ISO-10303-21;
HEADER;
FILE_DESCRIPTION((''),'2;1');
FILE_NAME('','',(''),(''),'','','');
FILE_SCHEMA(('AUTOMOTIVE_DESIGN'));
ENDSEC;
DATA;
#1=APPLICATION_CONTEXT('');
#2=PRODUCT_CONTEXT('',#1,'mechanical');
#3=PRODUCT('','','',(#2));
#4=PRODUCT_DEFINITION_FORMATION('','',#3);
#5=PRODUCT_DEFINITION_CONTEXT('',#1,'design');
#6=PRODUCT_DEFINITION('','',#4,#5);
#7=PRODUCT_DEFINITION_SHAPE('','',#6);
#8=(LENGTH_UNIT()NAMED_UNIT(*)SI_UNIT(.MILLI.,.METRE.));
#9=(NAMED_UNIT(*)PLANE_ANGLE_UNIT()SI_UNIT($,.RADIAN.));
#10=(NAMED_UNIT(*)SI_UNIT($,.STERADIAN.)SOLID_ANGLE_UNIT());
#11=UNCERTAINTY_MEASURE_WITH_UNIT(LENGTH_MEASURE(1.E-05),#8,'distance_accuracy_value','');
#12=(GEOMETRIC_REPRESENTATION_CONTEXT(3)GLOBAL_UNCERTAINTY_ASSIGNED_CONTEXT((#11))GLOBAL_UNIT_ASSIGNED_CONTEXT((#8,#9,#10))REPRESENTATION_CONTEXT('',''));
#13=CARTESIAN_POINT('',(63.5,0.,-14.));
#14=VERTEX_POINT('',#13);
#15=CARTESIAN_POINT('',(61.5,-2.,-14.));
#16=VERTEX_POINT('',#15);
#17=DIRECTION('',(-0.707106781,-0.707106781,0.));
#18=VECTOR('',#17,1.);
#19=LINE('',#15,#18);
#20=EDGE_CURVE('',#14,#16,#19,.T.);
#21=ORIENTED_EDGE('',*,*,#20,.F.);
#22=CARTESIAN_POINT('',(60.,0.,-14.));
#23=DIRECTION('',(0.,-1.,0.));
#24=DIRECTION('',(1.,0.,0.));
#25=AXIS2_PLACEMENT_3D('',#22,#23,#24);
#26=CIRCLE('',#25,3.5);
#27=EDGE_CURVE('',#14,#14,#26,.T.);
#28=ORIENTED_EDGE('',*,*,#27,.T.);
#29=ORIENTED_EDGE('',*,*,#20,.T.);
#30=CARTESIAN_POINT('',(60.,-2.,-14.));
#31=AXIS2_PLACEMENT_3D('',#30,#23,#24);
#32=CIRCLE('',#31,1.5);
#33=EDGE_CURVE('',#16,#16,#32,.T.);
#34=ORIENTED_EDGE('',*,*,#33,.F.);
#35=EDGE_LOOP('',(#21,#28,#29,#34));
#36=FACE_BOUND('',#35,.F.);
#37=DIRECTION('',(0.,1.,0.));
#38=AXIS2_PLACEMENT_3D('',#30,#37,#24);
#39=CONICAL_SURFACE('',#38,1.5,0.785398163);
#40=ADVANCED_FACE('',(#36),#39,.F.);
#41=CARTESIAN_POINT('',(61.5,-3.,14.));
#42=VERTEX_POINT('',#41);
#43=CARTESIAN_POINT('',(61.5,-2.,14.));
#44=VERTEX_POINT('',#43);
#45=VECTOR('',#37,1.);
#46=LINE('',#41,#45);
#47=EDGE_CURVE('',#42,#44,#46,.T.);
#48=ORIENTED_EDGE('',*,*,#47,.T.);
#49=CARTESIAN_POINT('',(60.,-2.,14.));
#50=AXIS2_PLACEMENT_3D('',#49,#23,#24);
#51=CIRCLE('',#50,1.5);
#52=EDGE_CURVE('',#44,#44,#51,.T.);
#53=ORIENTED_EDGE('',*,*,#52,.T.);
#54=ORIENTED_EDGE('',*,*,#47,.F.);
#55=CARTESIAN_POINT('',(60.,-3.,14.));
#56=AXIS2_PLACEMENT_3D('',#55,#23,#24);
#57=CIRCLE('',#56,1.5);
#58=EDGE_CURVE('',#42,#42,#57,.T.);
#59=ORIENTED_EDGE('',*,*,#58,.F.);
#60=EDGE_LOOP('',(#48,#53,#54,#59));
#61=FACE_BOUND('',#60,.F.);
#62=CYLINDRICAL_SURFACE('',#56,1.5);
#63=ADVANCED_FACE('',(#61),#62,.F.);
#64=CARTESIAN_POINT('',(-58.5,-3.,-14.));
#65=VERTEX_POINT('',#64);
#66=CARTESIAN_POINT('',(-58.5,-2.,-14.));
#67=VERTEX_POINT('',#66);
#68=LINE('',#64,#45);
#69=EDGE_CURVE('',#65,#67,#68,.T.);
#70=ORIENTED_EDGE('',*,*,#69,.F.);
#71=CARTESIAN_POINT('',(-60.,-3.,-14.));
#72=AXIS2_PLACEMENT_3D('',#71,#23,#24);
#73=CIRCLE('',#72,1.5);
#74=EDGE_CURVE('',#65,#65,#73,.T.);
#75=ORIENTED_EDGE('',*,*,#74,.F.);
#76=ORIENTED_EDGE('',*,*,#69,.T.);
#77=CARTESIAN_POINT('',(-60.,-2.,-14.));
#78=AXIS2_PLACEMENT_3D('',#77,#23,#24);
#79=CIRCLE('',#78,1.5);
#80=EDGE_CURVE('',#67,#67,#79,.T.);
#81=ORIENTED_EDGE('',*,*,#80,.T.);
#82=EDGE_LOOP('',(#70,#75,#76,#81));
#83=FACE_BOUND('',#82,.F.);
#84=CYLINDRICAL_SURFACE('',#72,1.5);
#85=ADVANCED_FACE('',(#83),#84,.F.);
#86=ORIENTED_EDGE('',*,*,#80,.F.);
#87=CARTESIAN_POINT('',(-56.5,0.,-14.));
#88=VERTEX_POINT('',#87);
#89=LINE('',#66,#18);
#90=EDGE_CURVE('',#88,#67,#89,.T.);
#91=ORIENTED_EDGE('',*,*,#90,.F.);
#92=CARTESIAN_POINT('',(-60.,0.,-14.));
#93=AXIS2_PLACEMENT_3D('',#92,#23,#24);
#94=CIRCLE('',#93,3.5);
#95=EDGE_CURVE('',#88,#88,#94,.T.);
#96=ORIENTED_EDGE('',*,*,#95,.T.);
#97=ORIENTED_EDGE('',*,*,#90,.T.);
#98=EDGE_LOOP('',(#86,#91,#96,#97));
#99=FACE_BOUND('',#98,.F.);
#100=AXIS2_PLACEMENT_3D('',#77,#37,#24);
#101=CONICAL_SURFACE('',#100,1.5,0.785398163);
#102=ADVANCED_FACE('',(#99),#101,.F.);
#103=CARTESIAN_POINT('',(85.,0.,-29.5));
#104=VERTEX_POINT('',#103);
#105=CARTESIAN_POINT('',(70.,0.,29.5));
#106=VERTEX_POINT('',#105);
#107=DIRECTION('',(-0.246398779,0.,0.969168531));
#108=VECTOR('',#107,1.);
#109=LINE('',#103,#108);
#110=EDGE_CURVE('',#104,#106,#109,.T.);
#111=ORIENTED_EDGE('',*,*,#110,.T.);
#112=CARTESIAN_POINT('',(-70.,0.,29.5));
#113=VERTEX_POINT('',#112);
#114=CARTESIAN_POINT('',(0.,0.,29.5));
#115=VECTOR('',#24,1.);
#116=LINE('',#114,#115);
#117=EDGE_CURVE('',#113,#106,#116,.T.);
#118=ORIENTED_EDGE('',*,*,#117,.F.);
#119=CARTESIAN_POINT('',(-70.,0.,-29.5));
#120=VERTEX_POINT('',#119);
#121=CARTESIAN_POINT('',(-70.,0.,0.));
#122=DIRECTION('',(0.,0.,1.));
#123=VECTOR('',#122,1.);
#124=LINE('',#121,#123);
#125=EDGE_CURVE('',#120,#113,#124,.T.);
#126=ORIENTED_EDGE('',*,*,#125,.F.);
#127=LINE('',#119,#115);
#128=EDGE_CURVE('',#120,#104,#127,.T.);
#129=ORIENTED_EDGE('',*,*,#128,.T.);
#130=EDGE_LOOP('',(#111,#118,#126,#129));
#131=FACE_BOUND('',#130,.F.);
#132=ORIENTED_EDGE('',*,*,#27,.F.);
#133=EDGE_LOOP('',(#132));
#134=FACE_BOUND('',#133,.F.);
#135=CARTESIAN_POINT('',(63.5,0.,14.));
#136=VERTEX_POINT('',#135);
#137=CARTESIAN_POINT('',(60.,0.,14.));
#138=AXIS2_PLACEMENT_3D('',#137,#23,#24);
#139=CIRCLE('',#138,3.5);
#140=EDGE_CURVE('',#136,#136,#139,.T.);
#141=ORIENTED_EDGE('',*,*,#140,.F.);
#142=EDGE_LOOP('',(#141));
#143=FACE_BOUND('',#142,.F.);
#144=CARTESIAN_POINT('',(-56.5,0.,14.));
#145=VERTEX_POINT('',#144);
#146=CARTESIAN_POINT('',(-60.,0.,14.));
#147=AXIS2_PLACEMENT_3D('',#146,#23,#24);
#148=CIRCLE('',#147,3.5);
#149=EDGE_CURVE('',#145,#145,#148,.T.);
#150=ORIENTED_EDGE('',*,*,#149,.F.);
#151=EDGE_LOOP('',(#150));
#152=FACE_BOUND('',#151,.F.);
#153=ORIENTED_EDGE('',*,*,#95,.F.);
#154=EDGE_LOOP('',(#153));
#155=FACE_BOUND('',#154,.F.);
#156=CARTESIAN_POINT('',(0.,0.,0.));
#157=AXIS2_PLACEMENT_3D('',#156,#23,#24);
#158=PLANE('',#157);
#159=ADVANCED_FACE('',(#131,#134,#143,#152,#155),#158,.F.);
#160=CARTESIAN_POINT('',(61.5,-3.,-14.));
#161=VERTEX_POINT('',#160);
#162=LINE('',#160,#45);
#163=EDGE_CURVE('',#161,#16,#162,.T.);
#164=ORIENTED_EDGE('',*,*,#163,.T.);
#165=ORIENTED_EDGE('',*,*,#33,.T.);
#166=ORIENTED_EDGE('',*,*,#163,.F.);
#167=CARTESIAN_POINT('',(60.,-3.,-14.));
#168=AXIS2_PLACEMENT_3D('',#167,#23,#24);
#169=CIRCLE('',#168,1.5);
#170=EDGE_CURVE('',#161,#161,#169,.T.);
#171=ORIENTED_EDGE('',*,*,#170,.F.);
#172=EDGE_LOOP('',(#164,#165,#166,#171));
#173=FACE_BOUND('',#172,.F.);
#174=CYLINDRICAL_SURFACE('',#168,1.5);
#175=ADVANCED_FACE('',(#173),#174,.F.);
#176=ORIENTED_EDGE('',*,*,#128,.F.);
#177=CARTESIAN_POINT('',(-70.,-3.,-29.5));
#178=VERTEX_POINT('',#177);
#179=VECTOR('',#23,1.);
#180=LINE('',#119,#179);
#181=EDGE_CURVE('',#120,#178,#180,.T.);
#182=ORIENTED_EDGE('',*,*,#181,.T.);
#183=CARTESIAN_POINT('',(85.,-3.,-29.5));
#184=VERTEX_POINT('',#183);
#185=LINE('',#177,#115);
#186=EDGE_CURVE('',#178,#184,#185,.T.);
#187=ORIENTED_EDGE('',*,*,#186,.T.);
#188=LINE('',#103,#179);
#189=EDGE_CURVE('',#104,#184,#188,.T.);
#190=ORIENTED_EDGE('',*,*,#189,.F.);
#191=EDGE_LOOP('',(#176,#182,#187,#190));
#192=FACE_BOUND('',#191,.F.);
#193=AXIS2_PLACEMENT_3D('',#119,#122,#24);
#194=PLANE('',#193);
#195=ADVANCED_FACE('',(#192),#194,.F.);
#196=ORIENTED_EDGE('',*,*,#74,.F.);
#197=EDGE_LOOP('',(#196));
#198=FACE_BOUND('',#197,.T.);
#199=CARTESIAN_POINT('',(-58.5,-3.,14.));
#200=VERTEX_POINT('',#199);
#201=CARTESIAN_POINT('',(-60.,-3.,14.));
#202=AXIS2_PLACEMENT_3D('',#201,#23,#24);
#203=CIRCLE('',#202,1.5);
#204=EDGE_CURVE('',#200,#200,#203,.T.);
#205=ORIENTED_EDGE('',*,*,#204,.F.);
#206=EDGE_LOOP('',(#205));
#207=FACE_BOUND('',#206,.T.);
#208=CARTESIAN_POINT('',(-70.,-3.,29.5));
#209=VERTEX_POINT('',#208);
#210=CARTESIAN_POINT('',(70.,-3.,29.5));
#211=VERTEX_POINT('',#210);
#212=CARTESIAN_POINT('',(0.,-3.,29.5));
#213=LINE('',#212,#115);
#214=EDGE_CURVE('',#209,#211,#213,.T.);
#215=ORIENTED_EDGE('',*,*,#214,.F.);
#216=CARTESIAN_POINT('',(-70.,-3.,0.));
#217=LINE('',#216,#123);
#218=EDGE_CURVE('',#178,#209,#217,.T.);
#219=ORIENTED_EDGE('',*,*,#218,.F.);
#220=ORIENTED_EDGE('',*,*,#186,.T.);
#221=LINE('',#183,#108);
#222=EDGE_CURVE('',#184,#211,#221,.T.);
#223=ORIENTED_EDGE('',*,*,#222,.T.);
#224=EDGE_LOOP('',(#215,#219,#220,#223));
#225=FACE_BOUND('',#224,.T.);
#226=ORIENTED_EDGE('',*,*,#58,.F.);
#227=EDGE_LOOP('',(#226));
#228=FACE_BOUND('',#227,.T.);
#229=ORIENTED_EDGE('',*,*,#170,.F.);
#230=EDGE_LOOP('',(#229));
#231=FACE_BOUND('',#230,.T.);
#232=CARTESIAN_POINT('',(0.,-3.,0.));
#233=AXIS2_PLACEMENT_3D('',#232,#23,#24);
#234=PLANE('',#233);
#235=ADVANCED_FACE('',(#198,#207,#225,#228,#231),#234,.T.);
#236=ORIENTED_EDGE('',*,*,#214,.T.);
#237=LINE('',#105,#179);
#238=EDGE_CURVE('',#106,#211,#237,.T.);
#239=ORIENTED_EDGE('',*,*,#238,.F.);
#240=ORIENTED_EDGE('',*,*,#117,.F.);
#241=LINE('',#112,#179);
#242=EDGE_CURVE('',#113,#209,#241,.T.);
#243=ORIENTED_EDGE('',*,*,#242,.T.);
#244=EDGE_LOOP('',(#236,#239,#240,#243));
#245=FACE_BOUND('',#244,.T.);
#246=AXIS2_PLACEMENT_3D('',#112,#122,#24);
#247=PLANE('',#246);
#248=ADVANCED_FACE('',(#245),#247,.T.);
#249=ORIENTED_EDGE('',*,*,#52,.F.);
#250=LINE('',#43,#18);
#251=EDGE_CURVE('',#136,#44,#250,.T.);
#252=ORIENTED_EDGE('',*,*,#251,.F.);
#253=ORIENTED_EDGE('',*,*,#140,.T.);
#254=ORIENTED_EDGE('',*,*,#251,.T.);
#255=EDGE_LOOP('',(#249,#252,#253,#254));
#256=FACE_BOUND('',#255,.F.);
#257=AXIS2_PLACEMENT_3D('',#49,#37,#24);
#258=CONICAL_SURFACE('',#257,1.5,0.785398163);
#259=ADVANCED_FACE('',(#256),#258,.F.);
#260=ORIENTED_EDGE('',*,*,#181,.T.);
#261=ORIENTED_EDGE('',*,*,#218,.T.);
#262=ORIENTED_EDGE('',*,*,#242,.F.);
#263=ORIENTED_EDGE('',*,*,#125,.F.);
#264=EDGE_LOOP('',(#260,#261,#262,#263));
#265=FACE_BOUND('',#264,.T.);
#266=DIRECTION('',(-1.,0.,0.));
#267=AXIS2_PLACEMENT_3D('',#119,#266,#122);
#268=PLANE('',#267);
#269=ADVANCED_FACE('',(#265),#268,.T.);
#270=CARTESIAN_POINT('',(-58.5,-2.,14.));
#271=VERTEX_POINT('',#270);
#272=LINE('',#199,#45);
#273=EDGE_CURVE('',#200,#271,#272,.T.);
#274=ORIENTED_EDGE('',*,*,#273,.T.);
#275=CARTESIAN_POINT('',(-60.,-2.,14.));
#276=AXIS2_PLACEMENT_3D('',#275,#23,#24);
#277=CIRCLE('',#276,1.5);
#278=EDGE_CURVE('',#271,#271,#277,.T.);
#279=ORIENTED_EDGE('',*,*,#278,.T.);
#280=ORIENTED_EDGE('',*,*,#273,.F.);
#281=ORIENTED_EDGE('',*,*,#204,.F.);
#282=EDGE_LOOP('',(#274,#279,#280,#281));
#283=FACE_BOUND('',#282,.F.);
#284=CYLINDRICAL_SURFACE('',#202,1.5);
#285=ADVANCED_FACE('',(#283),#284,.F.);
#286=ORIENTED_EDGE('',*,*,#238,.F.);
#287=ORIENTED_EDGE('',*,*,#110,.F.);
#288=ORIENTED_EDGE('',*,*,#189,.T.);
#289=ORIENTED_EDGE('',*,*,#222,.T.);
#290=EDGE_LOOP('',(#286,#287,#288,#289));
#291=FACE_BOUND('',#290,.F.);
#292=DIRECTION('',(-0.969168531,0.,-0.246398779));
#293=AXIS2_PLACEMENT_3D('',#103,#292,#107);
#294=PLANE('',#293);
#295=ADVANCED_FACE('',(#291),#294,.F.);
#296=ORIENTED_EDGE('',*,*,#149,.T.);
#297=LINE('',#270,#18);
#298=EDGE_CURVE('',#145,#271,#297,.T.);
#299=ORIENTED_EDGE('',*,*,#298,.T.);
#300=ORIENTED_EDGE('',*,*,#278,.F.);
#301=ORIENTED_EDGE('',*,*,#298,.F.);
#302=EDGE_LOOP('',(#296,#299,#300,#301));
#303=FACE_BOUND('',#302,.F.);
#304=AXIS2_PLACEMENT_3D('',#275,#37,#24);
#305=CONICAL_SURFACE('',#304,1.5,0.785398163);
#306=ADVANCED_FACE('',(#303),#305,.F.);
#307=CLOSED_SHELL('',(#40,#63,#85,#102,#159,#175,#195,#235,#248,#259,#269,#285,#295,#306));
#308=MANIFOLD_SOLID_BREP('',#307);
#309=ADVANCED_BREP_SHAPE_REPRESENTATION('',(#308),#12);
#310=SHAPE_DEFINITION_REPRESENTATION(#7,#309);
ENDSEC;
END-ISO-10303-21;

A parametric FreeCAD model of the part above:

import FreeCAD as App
import Part
import Sketcher
from FreeCAD import Vector
Q = App.Units.Quantity


def edges_at(feature, points):
    """Names of the edges that pass closest to the given points."""
    edges = feature.Shape.Edges
    near = lambda p: min(range(len(edges)), key=lambda i: edges[i].distToShape(Part.Vertex(*p))[0])
    return sorted({f"Edge{near(p) + 1}" for p in points})


def add_polygon(sketch, points):
    """Adds a closed chain of lines whose ends are joined by coincident constraints."""
    first, n = sketch.GeometryCount, len(points)
    for a, b in zip(points, points[1:] + points[:1]):
        sketch.addGeometry(Part.LineSegment(App.Vector(*a, 0), App.Vector(*b, 0)), False)
    for i in range(n):
        sketch.addConstraint(Sketcher.Constraint("Coincident", first + i, 2, first + (i + 1) % n, 1))

doc = App.newDocument("Part")
body = doc.addObject("PartDesign::Body", "Body")

# Sketch on XZ plane
sketch1 = doc.addObject("Sketcher::SketchObject", "Sketch")
body.addObject(sketch1)
sketch1.AttachmentSupport = (doc.XZ_Plane, [""])
sketch1.MapMode = "FlatFace"
add_polygon(sketch1, [(-70, 30), (-70, -30), (85, -30), (70, 30)])  # lines 0-3
sketch1.addConstraint([
    Sketcher.Constraint("Vertical", 0),
    Sketcher.Constraint("Horizontal", 1),
    Sketcher.Constraint("Horizontal", 3),
    Sketcher.Constraint("Symmetric", 0, 2, 2, 2, -1, 1),
    Sketcher.Constraint("DistanceX", 1, 1, 1, 2, Q("155 mm")),
    Sketcher.Constraint("DistanceX", 3, 2, 3, 1, Q("140 mm")),
    Sketcher.Constraint("DistanceY", 0, 2, 0, 1, Q("59 mm")),
])
pad1 = doc.addObject("PartDesign::Pad", "Pad")
body.addObject(pad1)
pad1.Profile = sketch1
pad1.Length = 3

# Sketch on XZ plane
sketch2 = doc.addObject("Sketcher::SketchObject", "Sketch001")
body.addObject(sketch2)
sketch2.AttachmentSupport = (doc.XZ_Plane, [""])
sketch2.MapMode = "FlatFace"
sketch2.AttachmentOffset = App.Placement(Vector(0, 0, 3), App.Rotation())
sketch2.addGeometry([
    Part.Circle(Vector(-60, 14, 0), Vector(0, 0, 1), 1.5),
    Part.Circle(Vector(60, 14, 0), Vector(0, 0, 1), 1.5),
    Part.Circle(Vector(60, -14, 0), Vector(0, 0, 1), 1.5),
    Part.Circle(Vector(-60, -14, 0), Vector(0, 0, 1), 1.5),
], False)
sketch2.addConstraint([
    Sketcher.Constraint("Equal", 0, 1),
    Sketcher.Constraint("Equal", 1, 2),
    Sketcher.Constraint("Equal", 2, 3),
    Sketcher.Constraint("Symmetric", 0, 3, 2, 3, -1, 1),
    Sketcher.Constraint("Symmetric", 1, 3, 3, 3, -1, 1),
    Sketcher.Constraint("Symmetric", 0, 3, 1, 3, -2),
    Sketcher.Constraint("Diameter", 0, Q("3 mm")),
    Sketcher.Constraint("DistanceX", 0, 3, -1, 1, Q("60 mm")),
    Sketcher.Constraint("DistanceY", -1, 1, 0, 3, Q("14 mm")),
])
pocket1 = doc.addObject("PartDesign::Pocket", "Pocket")
body.addObject(pocket1)
pocket1.Profile = sketch2
pocket1.Length = 25
doc.recompute()

chamfer = doc.addObject("PartDesign::Chamfer", "Chamfer")
body.addObject(chamfer)
chamfer.Base = (pocket1, edges_at(pocket1, [
    (-61.5, 0, -14),
    (-61.5, 0, 14),
    (58.5, 0, -14),
    (58.5, 0, 14),
]))
chamfer.Size = 2

doc.recompute()
